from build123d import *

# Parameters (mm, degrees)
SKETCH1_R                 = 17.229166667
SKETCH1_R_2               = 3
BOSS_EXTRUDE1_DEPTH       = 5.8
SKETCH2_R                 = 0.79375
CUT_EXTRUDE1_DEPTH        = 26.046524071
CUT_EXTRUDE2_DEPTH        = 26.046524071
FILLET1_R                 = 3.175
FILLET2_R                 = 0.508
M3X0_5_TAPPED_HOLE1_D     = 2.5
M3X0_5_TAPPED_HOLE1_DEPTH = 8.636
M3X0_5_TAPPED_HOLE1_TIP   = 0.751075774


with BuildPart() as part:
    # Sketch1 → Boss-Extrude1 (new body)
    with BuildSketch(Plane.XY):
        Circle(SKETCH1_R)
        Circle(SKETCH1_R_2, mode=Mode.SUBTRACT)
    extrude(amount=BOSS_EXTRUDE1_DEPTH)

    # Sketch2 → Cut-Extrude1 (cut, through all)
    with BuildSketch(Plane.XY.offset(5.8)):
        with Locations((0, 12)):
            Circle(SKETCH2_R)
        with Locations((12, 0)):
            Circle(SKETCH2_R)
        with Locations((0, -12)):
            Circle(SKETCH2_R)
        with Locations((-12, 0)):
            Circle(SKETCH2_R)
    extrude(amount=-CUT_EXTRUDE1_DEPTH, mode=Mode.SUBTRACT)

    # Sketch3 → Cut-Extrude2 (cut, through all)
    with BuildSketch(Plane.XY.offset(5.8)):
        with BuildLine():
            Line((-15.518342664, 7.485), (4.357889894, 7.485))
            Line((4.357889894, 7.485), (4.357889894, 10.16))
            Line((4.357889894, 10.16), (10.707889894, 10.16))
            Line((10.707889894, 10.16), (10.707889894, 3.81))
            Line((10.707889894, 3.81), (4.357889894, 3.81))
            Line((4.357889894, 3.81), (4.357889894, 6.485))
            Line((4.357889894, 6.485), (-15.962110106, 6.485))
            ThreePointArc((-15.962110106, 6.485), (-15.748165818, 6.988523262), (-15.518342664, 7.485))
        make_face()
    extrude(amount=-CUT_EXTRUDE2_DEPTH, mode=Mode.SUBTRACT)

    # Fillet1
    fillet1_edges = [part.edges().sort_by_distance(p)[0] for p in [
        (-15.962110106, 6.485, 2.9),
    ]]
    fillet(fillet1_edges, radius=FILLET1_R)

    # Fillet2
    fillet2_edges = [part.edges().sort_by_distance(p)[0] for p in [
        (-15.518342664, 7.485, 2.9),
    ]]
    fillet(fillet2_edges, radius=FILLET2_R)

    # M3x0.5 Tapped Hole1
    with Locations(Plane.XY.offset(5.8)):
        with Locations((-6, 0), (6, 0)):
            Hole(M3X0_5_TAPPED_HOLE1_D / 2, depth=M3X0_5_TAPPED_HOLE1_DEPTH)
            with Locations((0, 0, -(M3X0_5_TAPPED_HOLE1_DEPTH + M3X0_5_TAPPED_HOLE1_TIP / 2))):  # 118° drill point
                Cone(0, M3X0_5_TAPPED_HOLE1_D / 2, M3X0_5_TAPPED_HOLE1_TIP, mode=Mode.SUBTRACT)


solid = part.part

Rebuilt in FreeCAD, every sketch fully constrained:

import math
import FreeCAD as App
import Part
import Sketcher
from FreeCAD import Vector
Q = App.Units.Quantity


def edges_at(feature, points):
    """Names of the edges that pass closest to the given points."""
    edges = feature.Shape.Edges
    near = lambda p: min(range(len(edges)), key=lambda i: edges[i].distToShape(Part.Vertex(*p))[0])
    return sorted({f"Edge{near(p) + 1}" for p in points})

doc = App.newDocument("Part")
body = doc.addObject("PartDesign::Body", "Body")

sketch1 = doc.addObject("Sketcher::SketchObject", "Sketch")
body.addObject(sketch1)
sketch1.AttachmentSupport = (doc.XY_Plane, [""])
sketch1.MapMode = "FlatFace"
sketch1.addGeometry([
    Part.Circle(Vector(0, 0, 0), Vector(0, 0, 1), 17.229167),
    Part.Circle(Vector(0, 0, 0), Vector(0, 0, 1), 3),
], False)
sketch1.addConstraint([
    Sketcher.Constraint("Coincident", 0, 3, -1, 1),
    Sketcher.Constraint("Coincident", 1, 3, -1, 1),
    Sketcher.Constraint("Diameter", 1, Q("6 mm")),
    Sketcher.Constraint("Diameter", 0, Q("34.458333 mm")),
])
pad1 = doc.addObject("PartDesign::Pad", "Pad")
body.addObject(pad1)
pad1.Profile = sketch1
pad1.Length = 5.8

sketch2 = doc.addObject("Sketcher::SketchObject", "Sketch001")
body.addObject(sketch2)
sketch2.AttachmentSupport = (doc.XY_Plane, [""])
sketch2.MapMode = "FlatFace"
sketch2.AttachmentOffset = App.Placement(Vector(0, 0, 5.8), App.Rotation())
sketch2.addGeometry([
    Part.Circle(Vector(0, 12, 0), Vector(0, 0, 1), 0.79375),
    Part.Circle(Vector(12, 0, 0), Vector(0, 0, 1), 0.79375),
    Part.Circle(Vector(0, -12, 0), Vector(0, 0, 1), 0.79375),
    Part.Circle(Vector(-12, 0, 0), Vector(0, 0, 1), 0.79375),
], False)
sketch2.addConstraint([
    Sketcher.Constraint("Equal", 0, 1),
    Sketcher.Constraint("Equal", 1, 2),
    Sketcher.Constraint("Equal", 2, 3),
    Sketcher.Constraint("Symmetric", 0, 3, 2, 3, -1, 1),
    Sketcher.Constraint("Symmetric", 1, 3, 3, 3, -1, 1),
    Sketcher.Constraint("PointOnObject", 0, 3, -2),
    Sketcher.Constraint("PointOnObject", 1, 3, -1),
    Sketcher.Constraint("Diameter", 0, Q("0.0625 in")),
    Sketcher.Constraint("DistanceY", -1, 1, 0, 3, Q("12 mm")),
    Sketcher.Constraint("DistanceX", -1, 1, 1, 3, Q("12 mm")),
])
pocket1 = doc.addObject("PartDesign::Pocket", "Pocket")
body.addObject(pocket1)
pocket1.Profile = sketch2
pocket1.Type = "ThroughAll"

sketch3 = doc.addObject("Sketcher::SketchObject", "Sketch002")
body.addObject(sketch3)
sketch3.AttachmentSupport = (doc.XY_Plane, [""])
sketch3.MapMode = "FlatFace"
sketch3.AttachmentOffset = App.Placement(Vector(0, 0, 5.8), App.Rotation())
sketch3.addGeometry([
    Part.LineSegment(Vector(4.35789, 7.485, 0), Vector(-15.518343, 7.485, 0)),
    Part.ArcOfCircle(Part.Circle(Vector(0.000001, -0.000001, 0), Vector(0, 0, 1), 17.229168), math.radians(154.250479), math.radians(157.889341)),
    Part.LineSegment(Vector(-15.96211, 6.485, 0), Vector(4.35789, 6.485, 0)),
    Part.LineSegment(Vector(4.35789, 6.485, 0), Vector(4.35789, 3.81, 0)),
    Part.LineSegment(Vector(4.35789, 3.81, 0), Vector(10.70789, 3.81, 0)),
    Part.LineSegment(Vector(10.70789, 3.81, 0), Vector(10.70789, 10.16, 0)),
    Part.LineSegment(Vector(10.70789, 10.16, 0), Vector(4.35789, 10.16, 0)),
    Part.LineSegment(Vector(4.35789, 10.16, 0), Vector(4.35789, 7.485, 0)),
], False)
sketch3.addConstraint([
    Sketcher.Constraint("Coincident", 0, 2, 1, 1),
    Sketcher.Constraint("Coincident", 1, 2, 2, 1),
    Sketcher.Constraint("Coincident", 2, 2, 3, 1),
    Sketcher.Constraint("Coincident", 3, 2, 4, 1),
    Sketcher.Constraint("Coincident", 4, 2, 5, 1),
    Sketcher.Constraint("Coincident", 5, 2, 6, 1),
    Sketcher.Constraint("Coincident", 6, 2, 7, 1),
    Sketcher.Constraint("Coincident", 7, 2, 0, 1),
    Sketcher.Constraint("Horizontal", 0),
    Sketcher.Constraint("Horizontal", 2),
    Sketcher.Constraint("Vertical", 3),
    Sketcher.Constraint("Horizontal", 4),
    Sketcher.Constraint("Vertical", 5),
    Sketcher.Constraint("Horizontal", 6),
    Sketcher.Constraint("Vertical", 7),
    Sketcher.Constraint("Coincident", 1, 3, -1, 1),
    Sketcher.Constraint("Vertical", 3, 2, 6, 2),
    Sketcher.Constraint("Equal", 6, 5),
    Sketcher.Constraint("Equal", 3, 7),
    Sketcher.Constraint("DistanceX", 2, 1, 2, 2, Q("0.8 in")),
    Sketcher.Constraint("DistanceX", 4, 1, 4, 2, Q("0.25 in")),
    Sketcher.Constraint("DistanceY", -1, 1, 5, 2, Q("0.4 in")),
    Sketcher.Constraint("DistanceY", 3, 2, 3, 1, Q("2.675 mm")),
    Sketcher.Constraint("Radius", 1, Q("17.229168 mm")),
])
pocket2 = doc.addObject("PartDesign::Pocket", "Pocket001")
body.addObject(pocket2)
pocket2.Profile = sketch3
pocket2.Type = "ThroughAll"
doc.recompute()

fillet = doc.addObject("PartDesign::Fillet", "Fillet")
body.addObject(fillet)
fillet.Base = (pocket2, edges_at(pocket2, [(-15.962, 6.485, 2.9)]))
fillet.Radius = Q("0.125 in")
doc.recompute()

fillet2 = doc.addObject("PartDesign::Fillet", "Fillet001")
body.addObject(fillet2)
fillet2.Base = (fillet, edges_at(fillet, [(-15.518, 7.485, 2.9)]))
fillet2.Radius = Q("0.02 in")

sketch4 = doc.addObject("Sketcher::SketchObject", "Sketch003")
body.addObject(sketch4)
sketch4.AttachmentSupport = (doc.XY_Plane, [""])
sketch4.MapMode = "FlatFace"
sketch4.AttachmentOffset = App.Placement(Vector(0, 0, 5.8), App.Rotation())
sketch4.addGeometry([
    Part.Circle(Vector(-6, 0, 0), Vector(0, 0, 1), 1.25),
    Part.Circle(Vector(6, 0, 0), Vector(0, 0, 1), 1.25),
], False)
sketch4.addConstraint([
    Sketcher.Constraint("Equal", 0, 1),
    Sketcher.Constraint("Symmetric", 0, 3, 1, 3, -1, 1),
    Sketcher.Constraint("PointOnObject", 0, 3, -1),
    Sketcher.Constraint("Diameter", 0, Q("2.5 mm")),
    Sketcher.Constraint("DistanceX", 0, 3, -1, 1, Q("6 mm")),
])
doc.recompute()
hole = doc.addObject("PartDesign::Hole", "Hole")
body.addObject(hole)
hole.Profile = sketch4
hole.ThreadType = "None"
hole.Diameter = 2.5
hole.DepthType = "Dimension"
hole.Depth = Q("0.34 in")
hole.DrillPoint = "Angled"
hole.DrillPointAngle = 118

doc.recompute()
